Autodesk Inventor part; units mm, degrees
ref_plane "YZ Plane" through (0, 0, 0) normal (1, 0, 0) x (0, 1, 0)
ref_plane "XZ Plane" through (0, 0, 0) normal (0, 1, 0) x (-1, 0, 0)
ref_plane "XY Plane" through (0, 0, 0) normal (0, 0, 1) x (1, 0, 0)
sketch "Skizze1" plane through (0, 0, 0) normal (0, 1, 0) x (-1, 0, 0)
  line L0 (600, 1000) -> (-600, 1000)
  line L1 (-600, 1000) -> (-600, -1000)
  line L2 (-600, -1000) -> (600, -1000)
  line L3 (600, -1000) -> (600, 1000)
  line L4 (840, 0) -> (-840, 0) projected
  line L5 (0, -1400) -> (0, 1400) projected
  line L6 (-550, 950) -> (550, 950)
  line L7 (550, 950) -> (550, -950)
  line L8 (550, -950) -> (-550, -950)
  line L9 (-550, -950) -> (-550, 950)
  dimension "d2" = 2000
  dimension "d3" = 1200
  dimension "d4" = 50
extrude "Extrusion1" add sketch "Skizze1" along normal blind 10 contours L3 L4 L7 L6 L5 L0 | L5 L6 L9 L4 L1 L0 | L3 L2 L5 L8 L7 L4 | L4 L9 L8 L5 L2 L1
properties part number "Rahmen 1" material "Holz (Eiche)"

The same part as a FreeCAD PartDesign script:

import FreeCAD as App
import Part
import Sketcher
from FreeCAD import Vector
Q = App.Units.Quantity


def add_polygon(sketch, points):
    """Adds a closed chain of lines whose ends are joined by coincident constraints."""
    first, n = sketch.GeometryCount, len(points)
    for a, b in zip(points, points[1:] + points[:1]):
        sketch.addGeometry(Part.LineSegment(App.Vector(*a, 0), App.Vector(*b, 0)), False)
    for i in range(n):
        sketch.addConstraint(Sketcher.Constraint("Coincident", first + i, 2, first + (i + 1) % n, 1))

doc = App.newDocument("Part")
body = doc.addObject("PartDesign::Body", "Body")

# Sketch on XZ plane
sketch1 = body.newObject("Sketcher::SketchObject", "Sketch")
sketch1.AttachmentSupport = (doc.getObject("XZ_Plane"), [""])
sketch1.MapMode = "FlatFace"
add_polygon(sketch1, [(-600, 1000), (600, 1000), (600, -1000), (-600, -1000)])  # lines 0-3
add_polygon(sketch1, [(-550, 950), (-550, -950), (550, -950), (550, 950)])  # lines 4-7
sketch1.addConstraint(Sketcher.Constraint("Horizontal", 0))
sketch1.addConstraint(Sketcher.Constraint("Vertical", 1))
sketch1.addConstraint(Sketcher.Constraint("Horizontal", 2))
sketch1.addConstraint(Sketcher.Constraint("Vertical", 3))
sketch1.addConstraint(Sketcher.Constraint("Vertical", 4))
sketch1.addConstraint(Sketcher.Constraint("Horizontal", 5))
sketch1.addConstraint(Sketcher.Constraint("Vertical", 6))
sketch1.addConstraint(Sketcher.Constraint("Horizontal", 7))
sketch1.addConstraint(Sketcher.Constraint("Symmetric", 0, 2, 2, 2, -1, 1))
sketch1.addConstraint(Sketcher.Constraint("Symmetric", 4, 2, 6, 2, -1, 1))
sketch1.addConstraint(Sketcher.Constraint("DistanceX", 0, 1, 0, 2, Q("1200 mm")))
sketch1.addConstraint(Sketcher.Constraint("DistanceY", 1, 2, 1, 1, Q("2000 mm")))
sketch1.addConstraint(Sketcher.Constraint("DistanceX", 2, 2, 4, 2, Q("50 mm")))
sketch1.addConstraint(Sketcher.Constraint("DistanceY", 2, 2, 4, 2, Q("50 mm")))
pad1 = body.newObject("PartDesign::Pad", "Pad")
pad1.Profile = sketch1
pad1.Length = 10
pad1.Reversed = True

doc.recompute()
